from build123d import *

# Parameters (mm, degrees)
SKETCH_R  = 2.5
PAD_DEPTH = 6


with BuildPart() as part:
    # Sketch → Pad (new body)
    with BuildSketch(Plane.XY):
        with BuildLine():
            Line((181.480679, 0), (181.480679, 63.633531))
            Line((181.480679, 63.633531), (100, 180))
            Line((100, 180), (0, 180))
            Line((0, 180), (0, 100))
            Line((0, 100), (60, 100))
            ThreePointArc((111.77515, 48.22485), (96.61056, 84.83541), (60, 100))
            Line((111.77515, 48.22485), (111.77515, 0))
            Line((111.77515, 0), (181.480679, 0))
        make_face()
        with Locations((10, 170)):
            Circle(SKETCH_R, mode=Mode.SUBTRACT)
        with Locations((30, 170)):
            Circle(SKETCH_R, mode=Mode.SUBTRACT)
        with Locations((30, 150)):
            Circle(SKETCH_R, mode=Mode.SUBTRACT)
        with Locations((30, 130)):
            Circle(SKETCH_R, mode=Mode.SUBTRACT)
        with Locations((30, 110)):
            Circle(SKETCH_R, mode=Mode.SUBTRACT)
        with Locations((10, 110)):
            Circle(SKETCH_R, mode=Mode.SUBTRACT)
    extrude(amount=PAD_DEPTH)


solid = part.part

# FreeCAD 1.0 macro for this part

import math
import FreeCAD as App
import Part
import Sketcher
Q = App.Units.Quantity

doc = App.newDocument("Part")
params = doc.addObject("Spreadsheet::Sheet", "Params")
for row, (alias, value) in enumerate([
    ("sketch1_diameter", "5 mm"),
    ("sketch1_width", "100 mm"),
    ("sketch1_width2", "60 mm"),
    ("sketch1_height", "80 mm"),
    ("pad1_length", "6 mm"),
], start=1):
    params.set(f"A{row}", alias)
    params.set(f"B{row}", "=" + value)
    params.setAlias(f"B{row}", alias)

body = doc.addObject("PartDesign::Body", "Body")

# Sketch on XY plane
sketch1 = doc.addObject("Sketcher::SketchObject", "Sketch")
body.addObject(sketch1)
sketch1.AttachmentSupport = (doc.XY_Plane, [""])
sketch1.MapMode = "FlatFace"
sketch1.addGeometry(Part.LineSegment(App.Vector(181.5, 0, 0), App.Vector(181.5, 63.6, 0)), False)
sketch1.addGeometry(Part.LineSegment(App.Vector(181.5, 63.6, 0), App.Vector(100, 180, 0)), False)
sketch1.addGeometry(Part.LineSegment(App.Vector(100, 180, 0), App.Vector(0, 180, 0)), False)
sketch1.addGeometry(Part.LineSegment(App.Vector(0, 180, 0), App.Vector(0, 100, 0)), False)
sketch1.addGeometry(Part.LineSegment(App.Vector(0, 100, 0), App.Vector(60, 100, 0)), False)
sketch1.addGeometry(Part.ArcOfCircle(Part.Circle(App.Vector(60, 48.2, 0), App.Vector(0, 0, 1), 51.8), math.radians(0), math.radians(90)), False)
sketch1.addGeometry(Part.LineSegment(App.Vector(111.8, 48.2, 0), App.Vector(111.8, 0, 0)), False)
sketch1.addGeometry(Part.LineSegment(App.Vector(111.8, 0, 0), App.Vector(181.5, 0, 0)), False)
sketch1.addGeometry(Part.Circle(App.Vector(10, 110, 0), App.Vector(0, 0, 1), 2.5), False)
sketch1.addGeometry(Part.Circle(App.Vector(30, 110, 0), App.Vector(0, 0, 1), 2.5), False)
sketch1.addGeometry(Part.Circle(App.Vector(30, 130, 0), App.Vector(0, 0, 1), 2.5), False)
sketch1.addGeometry(Part.Circle(App.Vector(10, 170, 0), App.Vector(0, 0, 1), 2.5), False)
sketch1.addGeometry(Part.Circle(App.Vector(30, 150, 0), App.Vector(0, 0, 1), 2.5), False)
sketch1.addGeometry(Part.Circle(App.Vector(30, 170, 0), App.Vector(0, 0, 1), 2.5), False)
sketch1.addConstraint(Sketcher.Constraint("Coincident", 0, 2, 1, 1))
sketch1.addConstraint(Sketcher.Constraint("Coincident", 1, 2, 2, 1))
sketch1.addConstraint(Sketcher.Constraint("Coincident", 2, 2, 3, 1))
sketch1.addConstraint(Sketcher.Constraint("Coincident", 3, 2, 4, 1))
sketch1.addConstraint(Sketcher.Constraint("Tangent", 4, 2, 5, 2))
sketch1.addConstraint(Sketcher.Constraint("Tangent", 5, 1, 6, 1))
sketch1.addConstraint(Sketcher.Constraint("Coincident", 6, 2, 7, 1))
sketch1.addConstraint(Sketcher.Constraint("Coincident", 7, 2, 0, 1))
sketch1.addConstraint(Sketcher.Constraint("Vertical", 0))
sketch1.addConstraint(Sketcher.Constraint("Horizontal", 2))
sketch1.addConstraint(Sketcher.Constraint("Vertical", 3))
sketch1.addConstraint(Sketcher.Constraint("Horizontal", 4))
sketch1.addConstraint(Sketcher.Constraint("Vertical", 6))
sketch1.addConstraint(Sketcher.Constraint("Horizontal", 7))
sketch1.addConstraint(Sketcher.Constraint("Equal", 8, 9))
sketch1.addConstraint(Sketcher.Constraint("Equal", 9, 10))
sketch1.addConstraint(Sketcher.Constraint("Equal", 10, 11))
sketch1.addConstraint(Sketcher.Constraint("Equal", 11, 12))
sketch1.addConstraint(Sketcher.Constraint("Equal", 12, 13))
sketch1.addConstraint(Sketcher.Constraint("PointOnObject", 2, 2, -2))
sketch1.addConstraint(Sketcher.Constraint("PointOnObject", 6, 2, -1))
sketch1.addConstraint(Sketcher.Constraint("Horizontal", 8, 3, 9, 3))
sketch1.addConstraint(Sketcher.Constraint("Horizontal", 11, 3, 13, 3))
sketch1.addConstraint(Sketcher.Constraint("Vertical", 9, 3, 10, 3))
sketch1.addConstraint(Sketcher.Constraint("Vertical", 8, 3, 11, 3))
sketch1.addConstraint(Sketcher.Constraint("Vertical", 10, 3, 12, 3))
sketch1.addConstraint(Sketcher.Constraint("Vertical", 12, 3, 13, 3))
sketch1.addConstraint(Sketcher.Constraint("Diameter", 8, 5.0))
sketch1.addConstraint(Sketcher.Constraint("DistanceX", 2, 2, 2, 1, 100.0))
sketch1.addConstraint(Sketcher.Constraint("DistanceX", 4, 1, 4, 2, 60.0))
sketch1.addConstraint(Sketcher.Constraint("DistanceY", 3, 2, 3, 1, 80.0))
sketch1.addConstraint(Sketcher.Constraint("Angle", 1, Q("125 deg")))
sketch1.addConstraint(Sketcher.Constraint("DistanceX", -1, 1, 8, 3, 10.0))
sketch1.addConstraint(Sketcher.Constraint("DistanceY", -1, 1, 8, 3, 110.0))
sketch1.addConstraint(Sketcher.Constraint("DistanceX", -1, 1, 9, 3, 30.0))
sketch1.addConstraint(Sketcher.Constraint("DistanceY", -1, 1, 10, 3, 130.0))
sketch1.addConstraint(Sketcher.Constraint("DistanceY", -1, 1, 11, 3, 170.0))
sketch1.addConstraint(Sketcher.Constraint("DistanceY", -1, 1, 12, 3, 150.0))
sketch1.addConstraint(Sketcher.Constraint("DistanceY", -1, 1, 1, 2, 180.0))
sketch1.addConstraint(Sketcher.Constraint("Radius", 5, 51.775149))
sketch1.addConstraint(Sketcher.Constraint("DistanceX", 7, 1, 7, 2, 69.705529))
sketch1.setExpression("Constraints[27]", "Params.sketch1_diameter")
sketch1.setExpression("Constraints[28]", "Params.sketch1_width")
sketch1.setExpression("Constraints[29]", "Params.sketch1_width2")
sketch1.setExpression("Constraints[30]", "Params.sketch1_height")
pad1 = doc.addObject("PartDesign::Pad", "Pad")
body.addObject(pad1)
pad1.Profile = sketch1
pad1.setExpression("Length", "Params.pad1_length")

doc.recompute()
